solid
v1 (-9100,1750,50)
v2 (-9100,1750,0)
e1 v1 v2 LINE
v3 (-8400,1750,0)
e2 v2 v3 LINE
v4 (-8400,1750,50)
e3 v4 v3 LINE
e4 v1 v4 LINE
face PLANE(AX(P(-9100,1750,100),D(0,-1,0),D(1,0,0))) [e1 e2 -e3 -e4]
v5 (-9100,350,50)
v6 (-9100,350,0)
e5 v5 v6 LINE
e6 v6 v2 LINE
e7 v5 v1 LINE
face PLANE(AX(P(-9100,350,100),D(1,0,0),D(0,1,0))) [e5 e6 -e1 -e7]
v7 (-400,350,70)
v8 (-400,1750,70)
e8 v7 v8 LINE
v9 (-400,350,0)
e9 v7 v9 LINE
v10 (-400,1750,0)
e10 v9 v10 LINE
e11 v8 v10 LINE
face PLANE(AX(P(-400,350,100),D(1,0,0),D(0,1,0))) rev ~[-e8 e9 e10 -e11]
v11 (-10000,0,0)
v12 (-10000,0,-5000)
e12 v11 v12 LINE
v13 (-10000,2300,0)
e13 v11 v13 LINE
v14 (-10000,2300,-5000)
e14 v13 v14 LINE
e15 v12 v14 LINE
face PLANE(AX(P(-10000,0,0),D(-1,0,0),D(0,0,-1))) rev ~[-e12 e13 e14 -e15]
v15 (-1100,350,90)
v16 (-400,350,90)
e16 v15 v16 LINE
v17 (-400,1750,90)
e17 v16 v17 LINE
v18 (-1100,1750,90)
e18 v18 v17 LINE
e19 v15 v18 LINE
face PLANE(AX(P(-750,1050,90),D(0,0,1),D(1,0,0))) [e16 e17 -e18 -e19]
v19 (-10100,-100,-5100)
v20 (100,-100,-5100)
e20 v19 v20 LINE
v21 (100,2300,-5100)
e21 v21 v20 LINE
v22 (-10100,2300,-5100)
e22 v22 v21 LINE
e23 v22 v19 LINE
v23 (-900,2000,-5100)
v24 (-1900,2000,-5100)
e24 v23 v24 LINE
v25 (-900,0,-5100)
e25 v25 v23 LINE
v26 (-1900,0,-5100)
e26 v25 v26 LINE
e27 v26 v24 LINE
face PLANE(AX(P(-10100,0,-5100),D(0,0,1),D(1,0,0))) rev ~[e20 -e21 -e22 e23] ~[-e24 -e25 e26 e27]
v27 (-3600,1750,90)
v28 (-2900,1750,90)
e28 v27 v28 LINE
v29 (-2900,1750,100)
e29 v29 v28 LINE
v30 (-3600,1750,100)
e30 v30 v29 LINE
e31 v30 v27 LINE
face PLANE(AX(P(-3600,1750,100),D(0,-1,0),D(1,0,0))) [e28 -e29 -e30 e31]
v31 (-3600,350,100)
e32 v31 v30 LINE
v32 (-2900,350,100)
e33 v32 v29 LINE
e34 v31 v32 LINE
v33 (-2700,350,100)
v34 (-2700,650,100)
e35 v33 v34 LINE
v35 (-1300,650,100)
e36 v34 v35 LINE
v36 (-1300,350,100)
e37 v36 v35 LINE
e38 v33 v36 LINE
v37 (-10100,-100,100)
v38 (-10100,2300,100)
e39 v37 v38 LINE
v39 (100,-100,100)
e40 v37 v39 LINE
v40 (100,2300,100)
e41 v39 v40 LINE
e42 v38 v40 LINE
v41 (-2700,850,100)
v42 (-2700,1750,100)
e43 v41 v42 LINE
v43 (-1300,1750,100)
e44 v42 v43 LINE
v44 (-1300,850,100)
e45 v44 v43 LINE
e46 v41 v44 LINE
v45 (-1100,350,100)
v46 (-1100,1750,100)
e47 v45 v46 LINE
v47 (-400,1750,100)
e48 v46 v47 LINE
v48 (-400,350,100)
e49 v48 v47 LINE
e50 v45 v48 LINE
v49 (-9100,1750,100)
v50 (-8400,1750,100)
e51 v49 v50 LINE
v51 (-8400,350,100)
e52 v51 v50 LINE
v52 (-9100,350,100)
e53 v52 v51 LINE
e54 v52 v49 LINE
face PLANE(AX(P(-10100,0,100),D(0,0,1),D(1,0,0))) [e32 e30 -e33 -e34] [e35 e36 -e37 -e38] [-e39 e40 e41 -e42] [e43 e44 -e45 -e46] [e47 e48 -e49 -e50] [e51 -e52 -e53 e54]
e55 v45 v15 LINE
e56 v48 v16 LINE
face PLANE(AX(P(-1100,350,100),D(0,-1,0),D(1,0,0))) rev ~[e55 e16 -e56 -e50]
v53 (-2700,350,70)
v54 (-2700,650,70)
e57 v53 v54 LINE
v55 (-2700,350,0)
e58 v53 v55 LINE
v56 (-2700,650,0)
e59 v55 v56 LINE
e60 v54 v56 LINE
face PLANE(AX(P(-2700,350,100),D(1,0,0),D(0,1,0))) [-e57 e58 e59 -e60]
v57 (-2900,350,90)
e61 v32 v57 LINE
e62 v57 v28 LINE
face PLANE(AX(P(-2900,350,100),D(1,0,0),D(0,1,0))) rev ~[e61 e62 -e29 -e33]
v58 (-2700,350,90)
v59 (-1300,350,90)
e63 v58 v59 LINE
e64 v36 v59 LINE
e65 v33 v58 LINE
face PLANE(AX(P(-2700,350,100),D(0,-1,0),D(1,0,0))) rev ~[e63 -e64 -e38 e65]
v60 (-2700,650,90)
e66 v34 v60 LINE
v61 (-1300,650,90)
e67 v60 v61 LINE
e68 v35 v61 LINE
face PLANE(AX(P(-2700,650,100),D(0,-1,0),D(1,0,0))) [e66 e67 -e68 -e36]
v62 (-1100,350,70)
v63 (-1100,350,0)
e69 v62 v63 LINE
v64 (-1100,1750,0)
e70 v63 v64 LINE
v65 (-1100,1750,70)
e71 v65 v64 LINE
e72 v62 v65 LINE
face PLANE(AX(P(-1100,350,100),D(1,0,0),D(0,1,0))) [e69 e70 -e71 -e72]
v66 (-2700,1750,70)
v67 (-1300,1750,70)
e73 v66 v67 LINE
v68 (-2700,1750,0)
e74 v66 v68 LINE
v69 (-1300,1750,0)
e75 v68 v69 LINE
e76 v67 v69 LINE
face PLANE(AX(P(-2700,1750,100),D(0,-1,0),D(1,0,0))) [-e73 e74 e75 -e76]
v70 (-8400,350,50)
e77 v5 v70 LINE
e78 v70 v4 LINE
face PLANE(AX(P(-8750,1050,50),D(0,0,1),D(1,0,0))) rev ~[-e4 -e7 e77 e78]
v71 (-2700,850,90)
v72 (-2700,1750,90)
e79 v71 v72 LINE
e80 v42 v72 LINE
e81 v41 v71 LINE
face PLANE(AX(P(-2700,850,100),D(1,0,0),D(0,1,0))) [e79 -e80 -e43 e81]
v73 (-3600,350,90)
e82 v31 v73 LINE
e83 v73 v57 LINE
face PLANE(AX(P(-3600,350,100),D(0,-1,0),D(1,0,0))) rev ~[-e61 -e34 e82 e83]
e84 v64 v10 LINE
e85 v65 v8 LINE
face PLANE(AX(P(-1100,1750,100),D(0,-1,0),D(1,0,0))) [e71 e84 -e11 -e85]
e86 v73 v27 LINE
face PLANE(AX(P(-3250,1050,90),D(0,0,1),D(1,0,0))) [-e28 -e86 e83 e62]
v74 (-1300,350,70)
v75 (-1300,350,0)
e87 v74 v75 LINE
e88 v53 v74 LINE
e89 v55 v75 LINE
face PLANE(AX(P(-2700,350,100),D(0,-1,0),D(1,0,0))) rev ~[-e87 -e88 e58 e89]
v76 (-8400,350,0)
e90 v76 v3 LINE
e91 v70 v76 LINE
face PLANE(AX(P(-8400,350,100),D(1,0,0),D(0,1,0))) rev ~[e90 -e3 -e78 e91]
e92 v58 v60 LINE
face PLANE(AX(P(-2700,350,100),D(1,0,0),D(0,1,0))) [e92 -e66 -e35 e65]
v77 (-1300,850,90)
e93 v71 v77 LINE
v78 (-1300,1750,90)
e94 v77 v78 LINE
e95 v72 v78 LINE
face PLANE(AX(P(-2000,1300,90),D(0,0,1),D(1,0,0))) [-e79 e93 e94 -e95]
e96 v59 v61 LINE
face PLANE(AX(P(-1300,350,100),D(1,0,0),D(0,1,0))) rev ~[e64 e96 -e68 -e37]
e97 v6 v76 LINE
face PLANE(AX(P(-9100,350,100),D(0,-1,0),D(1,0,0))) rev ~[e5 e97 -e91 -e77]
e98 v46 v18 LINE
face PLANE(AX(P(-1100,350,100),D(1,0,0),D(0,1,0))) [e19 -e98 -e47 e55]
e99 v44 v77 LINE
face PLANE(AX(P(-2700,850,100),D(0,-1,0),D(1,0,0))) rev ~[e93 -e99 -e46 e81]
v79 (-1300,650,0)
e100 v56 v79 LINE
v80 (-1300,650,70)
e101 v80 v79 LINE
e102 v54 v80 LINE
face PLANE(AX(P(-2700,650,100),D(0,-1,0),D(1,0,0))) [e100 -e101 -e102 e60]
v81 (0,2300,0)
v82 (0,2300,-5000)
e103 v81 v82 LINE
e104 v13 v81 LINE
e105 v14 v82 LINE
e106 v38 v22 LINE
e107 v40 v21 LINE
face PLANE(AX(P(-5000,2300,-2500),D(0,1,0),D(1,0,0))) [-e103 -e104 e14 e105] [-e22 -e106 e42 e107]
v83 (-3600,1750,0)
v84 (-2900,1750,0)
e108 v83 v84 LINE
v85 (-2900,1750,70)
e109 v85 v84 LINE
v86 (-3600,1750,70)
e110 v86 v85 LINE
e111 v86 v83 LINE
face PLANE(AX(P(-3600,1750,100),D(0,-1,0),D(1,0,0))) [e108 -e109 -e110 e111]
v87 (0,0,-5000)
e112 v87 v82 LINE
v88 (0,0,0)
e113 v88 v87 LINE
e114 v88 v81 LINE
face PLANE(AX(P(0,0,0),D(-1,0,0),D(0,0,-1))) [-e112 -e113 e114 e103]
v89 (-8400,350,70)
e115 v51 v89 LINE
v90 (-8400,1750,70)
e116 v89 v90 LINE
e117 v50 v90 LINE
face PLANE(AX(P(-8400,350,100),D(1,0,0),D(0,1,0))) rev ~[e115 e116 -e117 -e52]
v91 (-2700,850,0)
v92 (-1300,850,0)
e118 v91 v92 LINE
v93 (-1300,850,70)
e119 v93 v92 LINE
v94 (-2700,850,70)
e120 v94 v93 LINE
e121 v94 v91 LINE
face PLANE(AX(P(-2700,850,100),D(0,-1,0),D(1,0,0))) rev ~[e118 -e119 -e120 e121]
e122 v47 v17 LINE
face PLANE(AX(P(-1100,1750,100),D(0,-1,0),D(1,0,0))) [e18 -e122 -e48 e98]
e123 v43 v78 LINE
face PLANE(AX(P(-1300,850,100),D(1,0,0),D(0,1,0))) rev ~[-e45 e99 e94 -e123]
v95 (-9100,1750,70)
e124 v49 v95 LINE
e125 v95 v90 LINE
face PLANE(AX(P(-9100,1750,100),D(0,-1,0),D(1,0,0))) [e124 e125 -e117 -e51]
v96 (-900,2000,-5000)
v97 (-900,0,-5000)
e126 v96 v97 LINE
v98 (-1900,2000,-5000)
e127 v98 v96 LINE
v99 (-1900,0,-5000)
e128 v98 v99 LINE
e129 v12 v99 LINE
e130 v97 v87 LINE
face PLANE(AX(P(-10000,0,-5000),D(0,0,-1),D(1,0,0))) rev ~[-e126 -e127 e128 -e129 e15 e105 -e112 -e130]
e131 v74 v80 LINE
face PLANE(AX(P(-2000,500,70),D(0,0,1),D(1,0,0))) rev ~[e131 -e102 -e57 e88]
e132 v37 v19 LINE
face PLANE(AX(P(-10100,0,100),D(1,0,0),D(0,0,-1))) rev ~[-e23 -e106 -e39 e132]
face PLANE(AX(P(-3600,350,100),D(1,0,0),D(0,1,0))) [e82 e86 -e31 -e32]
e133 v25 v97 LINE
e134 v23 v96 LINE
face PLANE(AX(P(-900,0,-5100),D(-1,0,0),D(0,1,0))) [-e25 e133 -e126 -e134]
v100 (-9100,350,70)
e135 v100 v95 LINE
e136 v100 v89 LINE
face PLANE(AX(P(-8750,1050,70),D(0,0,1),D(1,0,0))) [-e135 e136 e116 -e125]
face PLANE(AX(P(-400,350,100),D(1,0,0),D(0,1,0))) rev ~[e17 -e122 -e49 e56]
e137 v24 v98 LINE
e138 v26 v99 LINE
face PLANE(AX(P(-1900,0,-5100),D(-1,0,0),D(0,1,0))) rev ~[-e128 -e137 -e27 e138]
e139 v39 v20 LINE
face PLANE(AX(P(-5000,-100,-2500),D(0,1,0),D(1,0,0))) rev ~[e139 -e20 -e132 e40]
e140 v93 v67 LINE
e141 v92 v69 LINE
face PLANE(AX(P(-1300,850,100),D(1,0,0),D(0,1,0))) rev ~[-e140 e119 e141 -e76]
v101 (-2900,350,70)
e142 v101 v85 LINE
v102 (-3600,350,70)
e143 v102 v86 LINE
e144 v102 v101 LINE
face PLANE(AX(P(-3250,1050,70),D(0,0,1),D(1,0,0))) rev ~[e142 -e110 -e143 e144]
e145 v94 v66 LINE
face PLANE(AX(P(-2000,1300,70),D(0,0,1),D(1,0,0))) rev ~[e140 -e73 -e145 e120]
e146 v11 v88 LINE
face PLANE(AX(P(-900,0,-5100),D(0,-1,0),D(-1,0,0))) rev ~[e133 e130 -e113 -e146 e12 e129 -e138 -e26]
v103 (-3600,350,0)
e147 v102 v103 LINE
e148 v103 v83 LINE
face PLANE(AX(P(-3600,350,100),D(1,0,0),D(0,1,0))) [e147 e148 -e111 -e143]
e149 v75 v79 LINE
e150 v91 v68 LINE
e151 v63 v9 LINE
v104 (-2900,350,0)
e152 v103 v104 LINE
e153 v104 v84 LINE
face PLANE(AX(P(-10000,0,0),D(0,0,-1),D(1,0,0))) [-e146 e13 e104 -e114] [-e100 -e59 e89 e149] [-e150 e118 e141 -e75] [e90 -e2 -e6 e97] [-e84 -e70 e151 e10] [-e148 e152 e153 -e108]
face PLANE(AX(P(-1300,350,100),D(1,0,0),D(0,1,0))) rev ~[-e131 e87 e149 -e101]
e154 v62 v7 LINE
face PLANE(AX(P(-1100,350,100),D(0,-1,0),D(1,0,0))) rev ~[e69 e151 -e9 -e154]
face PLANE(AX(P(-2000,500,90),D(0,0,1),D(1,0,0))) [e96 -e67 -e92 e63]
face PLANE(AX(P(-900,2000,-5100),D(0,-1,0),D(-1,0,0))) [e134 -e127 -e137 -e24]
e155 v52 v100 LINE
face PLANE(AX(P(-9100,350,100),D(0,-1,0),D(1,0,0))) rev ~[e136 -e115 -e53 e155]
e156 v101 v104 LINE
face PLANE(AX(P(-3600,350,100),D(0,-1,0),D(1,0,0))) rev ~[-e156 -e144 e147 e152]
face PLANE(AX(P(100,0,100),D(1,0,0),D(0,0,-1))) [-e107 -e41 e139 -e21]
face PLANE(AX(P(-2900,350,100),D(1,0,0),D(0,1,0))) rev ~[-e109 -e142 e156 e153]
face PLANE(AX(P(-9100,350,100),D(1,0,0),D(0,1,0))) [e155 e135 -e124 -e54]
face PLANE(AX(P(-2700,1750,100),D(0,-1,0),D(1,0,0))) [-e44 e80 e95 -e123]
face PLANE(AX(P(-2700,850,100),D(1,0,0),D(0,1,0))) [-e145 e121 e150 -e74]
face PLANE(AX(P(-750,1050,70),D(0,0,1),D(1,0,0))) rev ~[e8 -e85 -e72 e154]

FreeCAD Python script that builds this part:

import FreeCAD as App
import Part
import Sketcher

V = App.Vector
Q = App.Units.Quantity


def add_polygon(sketch, points):
    """Adds a closed chain of lines whose ends are joined by coincident constraints."""
    first, n = sketch.GeometryCount, len(points)
    for a, b in zip(points, points[1:] + points[:1]):
        sketch.addGeometry(Part.LineSegment(App.Vector(*a, 0), App.Vector(*b, 0)), False)
    for i in range(n):
        sketch.addConstraint(Sketcher.Constraint("Coincident", first + i, 2, first + (i + 1) % n, 1))

doc = App.newDocument("Part")
body = doc.addObject("PartDesign::Body", "Body")

# Sketch on XZ plane
sketch1 = body.newObject("Sketcher::SketchObject", "Sketch")
sketch1.AttachmentSupport = (doc.getObject("XZ_Plane"), [""])
sketch1.MapMode = "FlatFace"
add_polygon(sketch1, [(-10100, -5100), (-10100, 100), (100, 100), (100, -5100)])  # lines 0-3
add_polygon(sketch1, [(0, 0), (-10000, 0), (-10000, -5000), (0, -5000)])  # lines 4-7
sketch1.addConstraint(Sketcher.Constraint("Vertical", 0))
sketch1.addConstraint(Sketcher.Constraint("Horizontal", 1))
sketch1.addConstraint(Sketcher.Constraint("Vertical", 2))
sketch1.addConstraint(Sketcher.Constraint("Horizontal", 3))
sketch1.addConstraint(Sketcher.Constraint("Horizontal", 4))
sketch1.addConstraint(Sketcher.Constraint("Vertical", 5))
sketch1.addConstraint(Sketcher.Constraint("Horizontal", 6))
sketch1.addConstraint(Sketcher.Constraint("Vertical", 7))
sketch1.addConstraint(Sketcher.Constraint("Coincident", 7, 2, -1, 1))
sketch1.addConstraint(Sketcher.Constraint("DistanceX", 1, 1, 1, 2, Q("10200 mm")))
sketch1.addConstraint(Sketcher.Constraint("DistanceX", 4, 2, 4, 1, Q("10000 mm")))
sketch1.addConstraint(Sketcher.Constraint("DistanceY", 0, 1, 0, 2, Q("5200 mm")))
sketch1.addConstraint(Sketcher.Constraint("DistanceY", 5, 2, 5, 1, Q("5000 mm")))
sketch1.addConstraint(Sketcher.Constraint("DistanceX", 0, 2, -1, 1, Q("10100 mm")))
sketch1.addConstraint(Sketcher.Constraint("DistanceY", -1, 1, 0, 2, Q("100 mm")))
pad1 = body.newObject("PartDesign::Pad", "Pad")
pad1.Profile = sketch1
pad1.Length = 2300
pad1.Reversed = True

# Sketch on XZ plane
sketch2 = body.newObject("Sketcher::SketchObject", "Sketch001")
sketch2.AttachmentSupport = (doc.getObject("XZ_Plane"), [""])
sketch2.MapMode = "FlatFace"
add_polygon(sketch2, [(-10100, -5100), (-10100, 100), (100, 100), (100, -5100)])  # lines 0-3
sketch2.addConstraint(Sketcher.Constraint("Vertical", 0))
sketch2.addConstraint(Sketcher.Constraint("Horizontal", 1))
sketch2.addConstraint(Sketcher.Constraint("Vertical", 2))
sketch2.addConstraint(Sketcher.Constraint("Horizontal", 3))
sketch2.addConstraint(Sketcher.Constraint("DistanceX", 1, 1, 1, 2, Q("10200 mm")))
sketch2.addConstraint(Sketcher.Constraint("DistanceY", 0, 1, 0, 2, Q("5200 mm")))
sketch2.addConstraint(Sketcher.Constraint("DistanceX", 0, 2, -1, 1, Q("10100 mm")))
sketch2.addConstraint(Sketcher.Constraint("DistanceY", -1, 1, 0, 2, Q("100 mm")))
pad2 = body.newObject("PartDesign::Pad", "Pad001")
pad2.Profile = sketch2
pad2.Length = 100

# Sketch on XY plane
sketch3 = body.newObject("Sketcher::SketchObject", "Sketch002")
sketch3.AttachmentSupport = (doc.getObject("XY_Plane"), [""])
sketch3.MapMode = "FlatFace"
sketch3.AttachmentOffset = App.Placement(V(0, 0, 100), App.Rotation())
add_polygon(sketch3, [(-1100, 1750), (-1100, 350), (-400, 350), (-400, 1750)])  # lines 0-3
sketch3.addConstraint(Sketcher.Constraint("Vertical", 0))
sketch3.addConstraint(Sketcher.Constraint("Horizontal", 1))
sketch3.addConstraint(Sketcher.Constraint("Vertical", 2))
sketch3.addConstraint(Sketcher.Constraint("Horizontal", 3))
sketch3.addConstraint(Sketcher.Constraint("DistanceX", 1, 1, 1, 2, Q("700 mm")))
sketch3.addConstraint(Sketcher.Constraint("DistanceY", 0, 2, 0, 1, Q("1400 mm")))
sketch3.addConstraint(Sketcher.Constraint("DistanceX", 0, 2, -1, 1, Q("1100 mm")))
sketch3.addConstraint(Sketcher.Constraint("DistanceY", -1, 1, 0, 2, Q("350 mm")))
pocket1 = body.newObject("PartDesign::Pocket", "Pocket")
pocket1.Profile = sketch3
pocket1.Type = "UpToFirst"

# Sketch on XY plane
sketch4 = body.newObject("Sketcher::SketchObject", "Sketch003")
sketch4.AttachmentSupport = (doc.getObject("XY_Plane"), [""])
sketch4.MapMode = "FlatFace"
sketch4.AttachmentOffset = App.Placement(V(0, 0, 100), App.Rotation())
add_polygon(sketch4, [(-2700, 1750), (-2700, 850), (-1300, 850), (-1300, 1750)])  # lines 0-3
sketch4.addConstraint(Sketcher.Constraint("Vertical", 0))
sketch4.addConstraint(Sketcher.Constraint("Horizontal", 1))
sketch4.addConstraint(Sketcher.Constraint("Vertical", 2))
sketch4.addConstraint(Sketcher.Constraint("Horizontal", 3))
sketch4.addConstraint(Sketcher.Constraint("DistanceX", 1, 1, 1, 2, Q("1400 mm")))
sketch4.addConstraint(Sketcher.Constraint("DistanceY", 0, 2, 0, 1, Q("900 mm")))
sketch4.addConstraint(Sketcher.Constraint("DistanceX", 0, 2, -1, 1, Q("2700 mm")))
sketch4.addConstraint(Sketcher.Constraint("DistanceY", -1, 1, 0, 2, Q("850 mm")))
pocket2 = body.newObject("PartDesign::Pocket", "Pocket001")
pocket2.Profile = sketch4
pocket2.Type = "UpToFirst"

# Sketch on XY plane
sketch5 = body.newObject("Sketcher::SketchObject", "Sketch004")
sketch5.AttachmentSupport = (doc.getObject("XY_Plane"), [""])
sketch5.MapMode = "FlatFace"
sketch5.AttachmentOffset = App.Placement(V(0, 0, 100), App.Rotation())
add_polygon(sketch5, [(-2700, 650), (-2700, 350), (-1300, 350), (-1300, 650)])  # lines 0-3
sketch5.addConstraint(Sketcher.Constraint("Vertical", 0))
sketch5.addConstraint(Sketcher.Constraint("Horizontal", 1))
sketch5.addConstraint(Sketcher.Constraint("Vertical", 2))
sketch5.addConstraint(Sketcher.Constraint("Horizontal", 3))
sketch5.addConstraint(Sketcher.Constraint("DistanceX", 1, 1, 1, 2, Q("1400 mm")))
sketch5.addConstraint(Sketcher.Constraint("DistanceY", 0, 2, 0, 1, Q("300 mm")))
sketch5.addConstraint(Sketcher.Constraint("DistanceX", 0, 2, -1, 1, Q("2700 mm")))
sketch5.addConstraint(Sketcher.Constraint("DistanceY", -1, 1, 0, 2, Q("350 mm")))
pocket3 = body.newObject("PartDesign::Pocket", "Pocket002")
pocket3.Profile = sketch5
pocket3.Type = "UpToFirst"

# Sketch on XY plane
sketch6 = body.newObject("Sketcher::SketchObject", "Sketch005")
sketch6.AttachmentSupport = (doc.getObject("XY_Plane"), [""])
sketch6.MapMode = "FlatFace"
sketch6.AttachmentOffset = App.Placement(V(0, 0, 100), App.Rotation())
add_polygon(sketch6, [(-3600, 1750), (-3600, 350), (-2900, 350), (-2900, 1750)])  # lines 0-3
sketch6.addConstraint(Sketcher.Constraint("Vertical", 0))
sketch6.addConstraint(Sketcher.Constraint("Horizontal", 1))
sketch6.addConstraint(Sketcher.Constraint("Vertical", 2))
sketch6.addConstraint(Sketcher.Constraint("Horizontal", 3))
sketch6.addConstraint(Sketcher.Constraint("DistanceX", 1, 1, 1, 2, Q("700 mm")))
sketch6.addConstraint(Sketcher.Constraint("DistanceY", 0, 2, 0, 1, Q("1400 mm")))
sketch6.addConstraint(Sketcher.Constraint("DistanceX", 0, 2, -1, 1, Q("3600 mm")))
sketch6.addConstraint(Sketcher.Constraint("DistanceY", -1, 1, 0, 2, Q("350 mm")))
pocket4 = body.newObject("PartDesign::Pocket", "Pocket003")
pocket4.Profile = sketch6
pocket4.Type = "UpToFirst"

# Sketch on XY plane
sketch7 = body.newObject("Sketcher::SketchObject", "Sketch006")
sketch7.AttachmentSupport = (doc.getObject("XY_Plane"), [""])
sketch7.MapMode = "FlatFace"
sketch7.AttachmentOffset = App.Placement(V(0, 0, 70), App.Rotation())
add_polygon(sketch7, [(-3600, 1750), (-3600, 350), (-2900, 350), (-2900, 1750)])  # lines 0-3
add_polygon(sketch7, [(-2700, 1750), (-2700, 850), (-1300, 850), (-1300, 1750)])  # lines 4-7
add_polygon(sketch7, [(-2700, 650), (-2700, 350), (-1300, 350), (-1300, 650)])  # lines 8-11
add_polygon(sketch7, [(-1100, 1750), (-1100, 350), (-400, 350), (-400, 1750)])  # lines 12-15
sketch7.addConstraint(Sketcher.Constraint("Vertical", 0))
sketch7.addConstraint(Sketcher.Constraint("Horizontal", 1))
sketch7.addConstraint(Sketcher.Constraint("Vertical", 2))
sketch7.addConstraint(Sketcher.Constraint("Horizontal", 3))
sketch7.addConstraint(Sketcher.Constraint("Vertical", 4))
sketch7.addConstraint(Sketcher.Constraint("Horizontal", 5))
sketch7.addConstraint(Sketcher.Constraint("Vertical", 6))
sketch7.addConstraint(Sketcher.Constraint("Horizontal", 7))
sketch7.addConstraint(Sketcher.Constraint("Vertical", 8))
sketch7.addConstraint(Sketcher.Constraint("Horizontal", 9))
sketch7.addConstraint(Sketcher.Constraint("Vertical", 10))
sketch7.addConstraint(Sketcher.Constraint("Horizontal", 11))
sketch7.addConstraint(Sketcher.Constraint("Vertical", 12))
sketch7.addConstraint(Sketcher.Constraint("Horizontal", 13))
sketch7.addConstraint(Sketcher.Constraint("Vertical", 14))
sketch7.addConstraint(Sketcher.Constraint("Horizontal", 15))
sketch7.addConstraint(Sketcher.Constraint("Horizontal", 3, 2, 6, 2))
sketch7.addConstraint(Sketcher.Constraint("Horizontal", 1, 2, 8, 2))
sketch7.addConstraint(Sketcher.Constraint("Horizontal", 9, 2, 12, 2))
sketch7.addConstraint(Sketcher.Constraint("Horizontal", 7, 2, 14, 2))
sketch7.addConstraint(Sketcher.Constraint("Vertical", 7, 2, 8, 2))
sketch7.addConstraint(Sketcher.Constraint("Vertical", 6, 2, 9, 2))
sketch7.addConstraint(Sketcher.Constraint("Equal", 3, 13))
sketch7.addConstraint(Sketcher.Constraint("Equal", 11, 0))
sketch7.addConstraint(Sketcher.Constraint("DistanceX", 1, 1, 1, 2, Q("700 mm")))
sketch7.addConstraint(Sketcher.Constraint("DistanceX", 5, 1, 5, 2, Q("1400 mm")))
sketch7.addConstraint(Sketcher.Constraint("DistanceY", 4, 2, 4, 1, Q("900 mm")))
sketch7.addConstraint(Sketcher.Constraint("DistanceY", 8, 2, 8, 1, Q("300 mm")))
sketch7.addConstraint(Sketcher.Constraint("DistanceX", 0, 2, -1, 1, Q("3600 mm")))
sketch7.addConstraint(Sketcher.Constraint("DistanceY", -1, 1, 0, 2, Q("350 mm")))
sketch7.addConstraint(Sketcher.Constraint("DistanceX", 4, 2, -1, 1, Q("2700 mm")))
sketch7.addConstraint(Sketcher.Constraint("DistanceX", 12, 2, -1, 1, Q("1100 mm")))
pad3 = body.newObject("PartDesign::Pad", "Pad002")
pad3.Profile = sketch7
pad3.Length = 20

# Sketch on XY plane
sketch8 = body.newObject("Sketcher::SketchObject", "Sketch007")
sketch8.AttachmentSupport = (doc.getObject("XY_Plane"), [""])
sketch8.MapMode = "FlatFace"
sketch8.AttachmentOffset = App.Placement(V(0, 0, 100), App.Rotation())
add_polygon(sketch8, [(-9100, 1750), (-9100, 350), (-8400, 350), (-8400, 1750)])  # lines 0-3
sketch8.addConstraint(Sketcher.Constraint("Vertical", 0))
sketch8.addConstraint(Sketcher.Constraint("Horizontal", 1))
sketch8.addConstraint(Sketcher.Constraint("Vertical", 2))
sketch8.addConstraint(Sketcher.Constraint("Horizontal", 3))
sketch8.addConstraint(Sketcher.Constraint("DistanceX", 1, 1, 1, 2, Q("700 mm")))
sketch8.addConstraint(Sketcher.Constraint("DistanceY", 0, 2, 0, 1, Q("1400 mm")))
sketch8.addConstraint(Sketcher.Constraint("DistanceX", 0, 2, -1, 1, Q("9100 mm")))
sketch8.addConstraint(Sketcher.Constraint("DistanceY", -1, 1, 0, 2, Q("350 mm")))
pocket5 = body.newObject("PartDesign::Pocket", "Pocket004")
pocket5.Profile = sketch8
pocket5.Type = "UpToFirst"

# Sketch on XY plane
sketch9 = body.newObject("Sketcher::SketchObject", "Sketch008")
sketch9.AttachmentSupport = (doc.getObject("XY_Plane"), [""])
sketch9.MapMode = "FlatFace"
sketch9.AttachmentOffset = App.Placement(V(0, 0, 70), App.Rotation())
add_polygon(sketch9, [(-9100, 1750), (-9100, 350), (-8400, 350), (-8400, 1750)])  # lines 0-3
sketch9.addConstraint(Sketcher.Constraint("Vertical", 0))
sketch9.addConstraint(Sketcher.Constraint("Horizontal", 1))
sketch9.addConstraint(Sketcher.Constraint("Vertical", 2))
sketch9.addConstraint(Sketcher.Constraint("Horizontal", 3))
sketch9.addConstraint(Sketcher.Constraint("DistanceX", 1, 1, 1, 2, Q("700 mm")))
sketch9.addConstraint(Sketcher.Constraint("DistanceY", 0, 2, 0, 1, Q("1400 mm")))
sketch9.addConstraint(Sketcher.Constraint("DistanceX", 0, 2, -1, 1, Q("9100 mm")))
sketch9.addConstraint(Sketcher.Constraint("DistanceY", -1, 1, 0, 2, Q("350 mm")))
pad4 = body.newObject("PartDesign::Pad", "Pad003")
pad4.Profile = sketch9
pad4.Length = 20
pad4.Reversed = True

# Sketch on XY plane
sketch10 = body.newObject("Sketcher::SketchObject", "Sketch009")
sketch10.AttachmentSupport = (doc.getObject("XY_Plane"), [""])
sketch10.MapMode = "FlatFace"
sketch10.AttachmentOffset = App.Placement(V(0, 0, -5100), App.Rotation())
add_polygon(sketch10, [(-900, 2000), (-900, 0), (-1900, 0), (-1900, 2000)])  # lines 0-3
sketch10.addConstraint(Sketcher.Constraint("Vertical", 0))
sketch10.addConstraint(Sketcher.Constraint("Horizontal", 1))
sketch10.addConstraint(Sketcher.Constraint("Vertical", 2))
sketch10.addConstraint(Sketcher.Constraint("Horizontal", 3))
sketch10.addConstraint(Sketcher.Constraint("PointOnObject", 0, 2, -1))
sketch10.addConstraint(Sketcher.Constraint("DistanceX", 1, 2, 1, 1, Q("1000 mm")))
sketch10.addConstraint(Sketcher.Constraint("DistanceY", 0, 2, 0, 1, Q("2000 mm")))
sketch10.addConstraint(Sketcher.Constraint("DistanceX", 0, 2, -1, 1, Q("900 mm")))
pocket6 = body.newObject("PartDesign::Pocket", "Pocket005")
pocket6.Profile = sketch10
pocket6.Type = "UpToFirst"
pocket6.Reversed = True

doc.recompute()
